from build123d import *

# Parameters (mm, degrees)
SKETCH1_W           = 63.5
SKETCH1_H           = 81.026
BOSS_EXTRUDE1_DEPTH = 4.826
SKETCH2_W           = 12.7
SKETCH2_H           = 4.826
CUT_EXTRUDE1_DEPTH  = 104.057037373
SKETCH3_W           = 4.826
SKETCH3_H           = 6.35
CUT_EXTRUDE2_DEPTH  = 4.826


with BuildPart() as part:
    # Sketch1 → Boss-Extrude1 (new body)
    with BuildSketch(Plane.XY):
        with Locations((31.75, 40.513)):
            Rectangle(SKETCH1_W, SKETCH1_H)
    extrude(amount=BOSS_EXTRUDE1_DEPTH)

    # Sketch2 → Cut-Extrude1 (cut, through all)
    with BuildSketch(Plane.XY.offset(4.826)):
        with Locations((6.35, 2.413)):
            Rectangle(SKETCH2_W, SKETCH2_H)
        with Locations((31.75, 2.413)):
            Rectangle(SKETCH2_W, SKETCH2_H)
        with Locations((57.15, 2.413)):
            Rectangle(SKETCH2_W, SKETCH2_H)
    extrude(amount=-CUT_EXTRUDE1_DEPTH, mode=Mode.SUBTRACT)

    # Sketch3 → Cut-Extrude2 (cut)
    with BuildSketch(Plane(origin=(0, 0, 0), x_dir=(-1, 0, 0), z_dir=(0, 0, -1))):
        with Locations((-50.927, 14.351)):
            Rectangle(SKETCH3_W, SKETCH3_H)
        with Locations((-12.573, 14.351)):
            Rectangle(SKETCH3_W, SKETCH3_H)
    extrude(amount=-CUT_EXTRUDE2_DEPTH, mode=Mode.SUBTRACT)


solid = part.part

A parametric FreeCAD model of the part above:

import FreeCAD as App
import Part
import Sketcher

V = App.Vector
Q = App.Units.Quantity


def add_polygon(sketch, points):
    """Adds a closed chain of lines whose ends are joined by coincident constraints."""
    first, n = sketch.GeometryCount, len(points)
    for a, b in zip(points, points[1:] + points[:1]):
        sketch.addGeometry(Part.LineSegment(App.Vector(*a, 0), App.Vector(*b, 0)), False)
    for i in range(n):
        sketch.addConstraint(Sketcher.Constraint("Coincident", first + i, 2, first + (i + 1) % n, 1))

doc = App.newDocument("Part")
params = doc.addObject("Spreadsheet::Sheet", "Params")
for row, (alias, value) in enumerate([
    ("sketch1_width", "2.5 in"),
    ("sketch1_height", "3.19 in"),
    ("pad1_length", "0.19 in"),
    ("sketch2_width", "0.5 in"),
    ("sketch2_height", "0.19 in"),
    ("sketch3_width", "0.19 in"),
    ("sketch3_height", "0.25 in"),
    ("pocket2_length", "0.19 in"),
], start=1):
    params.set(f"A{row}", alias)
    params.set(f"B{row}", "=" + value)
    params.setAlias(f"B{row}", alias)

body = doc.addObject("PartDesign::Body", "Body")

sketch1 = body.newObject("Sketcher::SketchObject", "Sketch")
sketch1.AttachmentSupport = (doc.getObject("XY_Plane"), [""])
sketch1.MapMode = "FlatFace"
add_polygon(sketch1, [(0, 81), (0, 0), (64, 0), (64, 81)])
sketch1.addConstraint([
    Sketcher.Constraint("Vertical", 0),
    Sketcher.Constraint("Horizontal", 1),
    Sketcher.Constraint("Vertical", 2),
    Sketcher.Constraint("Horizontal", 3),
    Sketcher.Constraint("Coincident", 0, 2, -1, 1),
    Sketcher.Constraint("DistanceX", 1, 1, 1, 2, Q("2.5 in")),
    Sketcher.Constraint("DistanceY", 0, 2, 0, 1, Q("3.19 in")),
])
sketch1.setExpression("Constraints[9]", "Params.sketch1_width")
sketch1.setExpression("Constraints[10]", "Params.sketch1_height")
pad1 = body.newObject("PartDesign::Pad", "Pad")
pad1.Profile = sketch1
pad1.setExpression("Length", "Params.pad1_length")

sketch2 = body.newObject("Sketcher::SketchObject", "Sketch001")
sketch2.AttachmentSupport = (doc.getObject("XY_Plane"), [""])
sketch2.MapMode = "FlatFace"
sketch2.AttachmentOffset = App.Placement(V(0, 0, 0.19 * 25.4), App.Rotation())
add_polygon(sketch2, [(0, 4.8), (0, 0), (12.7, 0), (12.7, 4.8)])
add_polygon(sketch2, [(25.4, 4.8), (25.4, 0), (38.1, 0), (38.1, 4.8)])
add_polygon(sketch2, [(50.8, 4.8), (50.8, 0), (63.5, 0), (63.5, 4.8)])
sketch2.addConstraint([
    Sketcher.Constraint("Vertical", 0),
    Sketcher.Constraint("Horizontal", 1),
    Sketcher.Constraint("Vertical", 2),
    Sketcher.Constraint("Horizontal", 3),
    Sketcher.Constraint("Vertical", 4),
    Sketcher.Constraint("Horizontal", 5),
    Sketcher.Constraint("Vertical", 6),
    Sketcher.Constraint("Horizontal", 7),
    Sketcher.Constraint("Vertical", 8),
    Sketcher.Constraint("Horizontal", 9),
    Sketcher.Constraint("Vertical", 10),
    Sketcher.Constraint("Horizontal", 11),
    Sketcher.Constraint("Coincident", 0, 2, -1, 1),
    Sketcher.Constraint("PointOnObject", 4, 2, -1),
    Sketcher.Constraint("PointOnObject", 8, 2, -1),
    Sketcher.Constraint("Horizontal", 3, 2, 6, 2),
    Sketcher.Constraint("Horizontal", 7, 2, 10, 2),
    Sketcher.Constraint("Equal", 3, 5),
    Sketcher.Constraint("Equal", 7, 9),
    Sketcher.Constraint("DistanceX", 1, 1, 1, 2, Q("0.5 in")),
    Sketcher.Constraint("DistanceX", -1, 1, 4, 2, Q("1 in")),
    Sketcher.Constraint("DistanceX", -1, 1, 8, 2, Q("2 in")),
    Sketcher.Constraint("DistanceY", 0, 2, 0, 1, Q("0.19 in")),
])
sketch2.setExpression("Constraints[31]", "Params.sketch2_width")
sketch2.setExpression("Constraints[34]", "Params.sketch2_height")
pocket1 = body.newObject("PartDesign::Pocket", "Pocket")
pocket1.Profile = sketch2
pocket1.Type = "ThroughAll"

sketch3 = body.newObject("Sketcher::SketchObject", "Sketch002")
sketch3.AttachmentSupport = (doc.getObject("XY_Plane"), [""])
sketch3.MapMode = "FlatFace"
add_polygon(sketch3, [(53.3, 17.5), (53.3, 11.2), (48.5, 11.2), (48.5, 17.5)])
add_polygon(sketch3, [(15, 17.5), (15, 11.2), (10.2, 11.2), (10.2, 17.5)])
sketch3.addConstraint([
    Sketcher.Constraint("Vertical", 0),
    Sketcher.Constraint("Horizontal", 1),
    Sketcher.Constraint("Vertical", 2),
    Sketcher.Constraint("Horizontal", 3),
    Sketcher.Constraint("Vertical", 4),
    Sketcher.Constraint("Horizontal", 5),
    Sketcher.Constraint("Vertical", 6),
    Sketcher.Constraint("Horizontal", 7),
    Sketcher.Constraint("Horizontal", 1, 2, 4, 2),
    Sketcher.Constraint("Horizontal", 3, 2, 6, 2),
    Sketcher.Constraint("Equal", 3, 5),
    Sketcher.Constraint("DistanceX", 1, 2, 1, 1, Q("0.19 in")),
    Sketcher.Constraint("DistanceY", 0, 2, 0, 1, Q("0.25 in")),
    Sketcher.Constraint("DistanceX", -1, 1, 0, 2, Q("2.1 in")),
    Sketcher.Constraint("DistanceX", -1, 1, 5, 2, Q("0.4 in")),
    Sketcher.Constraint("DistanceY", -1, 1, 0, 2, Q("0.44 in")),
])
sketch3.setExpression("Constraints[19]", "Params.sketch3_width")
sketch3.setExpression("Constraints[20]", "Params.sketch3_height")
pocket2 = body.newObject("PartDesign::Pocket", "Pocket001")
pocket2.Profile = sketch3
pocket2.setExpression("Length", "Params.pocket2_length")
pocket2.Reversed = True

doc.recompute()
